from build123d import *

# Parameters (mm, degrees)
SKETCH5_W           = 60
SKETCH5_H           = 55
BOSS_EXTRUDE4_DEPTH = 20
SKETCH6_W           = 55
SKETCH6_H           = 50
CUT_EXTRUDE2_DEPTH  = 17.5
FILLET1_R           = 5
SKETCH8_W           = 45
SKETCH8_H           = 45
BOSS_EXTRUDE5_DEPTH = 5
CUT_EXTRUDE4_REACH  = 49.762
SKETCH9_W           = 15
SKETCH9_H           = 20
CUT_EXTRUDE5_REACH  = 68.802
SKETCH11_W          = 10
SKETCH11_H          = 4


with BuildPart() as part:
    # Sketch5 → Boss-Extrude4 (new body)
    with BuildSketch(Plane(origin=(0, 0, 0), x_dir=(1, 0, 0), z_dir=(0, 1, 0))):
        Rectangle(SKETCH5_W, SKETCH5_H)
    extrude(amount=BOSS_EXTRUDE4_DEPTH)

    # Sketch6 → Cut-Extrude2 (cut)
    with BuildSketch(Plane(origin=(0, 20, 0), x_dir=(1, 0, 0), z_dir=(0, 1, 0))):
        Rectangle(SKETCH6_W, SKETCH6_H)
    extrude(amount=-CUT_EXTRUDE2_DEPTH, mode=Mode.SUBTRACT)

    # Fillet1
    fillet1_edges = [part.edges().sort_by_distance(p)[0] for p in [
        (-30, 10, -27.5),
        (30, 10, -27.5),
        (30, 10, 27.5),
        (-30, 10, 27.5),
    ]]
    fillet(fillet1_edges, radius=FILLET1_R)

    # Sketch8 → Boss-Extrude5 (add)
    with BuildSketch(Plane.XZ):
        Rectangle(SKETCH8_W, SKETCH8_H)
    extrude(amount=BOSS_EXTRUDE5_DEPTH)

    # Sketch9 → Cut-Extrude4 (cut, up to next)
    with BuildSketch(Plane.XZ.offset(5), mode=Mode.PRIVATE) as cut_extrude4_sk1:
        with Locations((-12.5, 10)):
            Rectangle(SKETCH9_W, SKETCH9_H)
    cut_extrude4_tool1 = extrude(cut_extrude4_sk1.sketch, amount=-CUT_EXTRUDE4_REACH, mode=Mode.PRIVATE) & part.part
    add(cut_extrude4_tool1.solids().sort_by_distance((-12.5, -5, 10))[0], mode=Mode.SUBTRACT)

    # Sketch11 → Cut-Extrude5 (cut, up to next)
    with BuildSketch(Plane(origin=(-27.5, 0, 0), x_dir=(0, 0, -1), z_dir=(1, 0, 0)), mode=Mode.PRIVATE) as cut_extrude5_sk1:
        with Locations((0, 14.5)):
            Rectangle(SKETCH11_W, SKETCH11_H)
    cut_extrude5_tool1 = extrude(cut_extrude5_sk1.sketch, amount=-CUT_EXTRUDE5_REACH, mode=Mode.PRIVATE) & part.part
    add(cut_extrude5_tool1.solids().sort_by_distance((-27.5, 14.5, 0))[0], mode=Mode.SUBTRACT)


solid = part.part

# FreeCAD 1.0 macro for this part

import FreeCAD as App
import Part
import Sketcher
from FreeCAD import Vector


def edges_at(feature, points):
    """Names of the edges that pass closest to the given points."""
    edges = feature.Shape.Edges
    near = lambda p: min(range(len(edges)), key=lambda i: edges[i].distToShape(Part.Vertex(*p))[0])
    return sorted({f"Edge{near(p) + 1}" for p in points})


def add_polygon(sketch, points):
    """Adds a closed chain of lines whose ends are joined by coincident constraints."""
    first, n = sketch.GeometryCount, len(points)
    for a, b in zip(points, points[1:] + points[:1]):
        sketch.addGeometry(Part.LineSegment(App.Vector(*a, 0), App.Vector(*b, 0)), False)
    for i in range(n):
        sketch.addConstraint(Sketcher.Constraint("Coincident", first + i, 2, first + (i + 1) % n, 1))

doc = App.newDocument("Part")
body = doc.addObject("PartDesign::Body", "Body")

# Sketch on XZ plane
sketch1 = body.newObject("Sketcher::SketchObject", "Sketch")
sketch1.AttachmentSupport = (doc.getObject("XZ_Plane"), [""])
sketch1.MapMode = "FlatFace"
add_polygon(sketch1, [(-30, -27.5), (-30, 27.5), (30, 27.5), (30, -27.5)])  # lines 0-3
sketch1.addConstraint(Sketcher.Constraint("Vertical", 0))
sketch1.addConstraint(Sketcher.Constraint("Horizontal", 1))
sketch1.addConstraint(Sketcher.Constraint("Vertical", 2))
sketch1.addConstraint(Sketcher.Constraint("Horizontal", 3))
sketch1.addConstraint(Sketcher.Constraint("Symmetric", 0, 2, 2, 2, -1, 1))
sketch1.addConstraint(Sketcher.Constraint("DistanceX", 1, 1, 1, 2, 60.0))
sketch1.addConstraint(Sketcher.Constraint("DistanceY", 0, 1, 0, 2, 55.0))
pad1 = body.newObject("PartDesign::Pad", "Pad")
pad1.Profile = sketch1
pad1.Length = 20
pad1.Reversed = True

# Sketch on XZ plane
sketch2 = body.newObject("Sketcher::SketchObject", "Sketch001")
sketch2.AttachmentSupport = (doc.getObject("XZ_Plane"), [""])
sketch2.MapMode = "FlatFace"
sketch2.AttachmentOffset = App.Placement(Vector(0, 0, -20), App.Rotation())
add_polygon(sketch2, [(-27.5, -25), (-27.5, 25), (27.5, 25), (27.5, -25)])  # lines 0-3
sketch2.addConstraint(Sketcher.Constraint("Vertical", 0))
sketch2.addConstraint(Sketcher.Constraint("Horizontal", 1))
sketch2.addConstraint(Sketcher.Constraint("Vertical", 2))
sketch2.addConstraint(Sketcher.Constraint("Horizontal", 3))
sketch2.addConstraint(Sketcher.Constraint("Symmetric", 0, 2, 2, 2, -1, 1))
sketch2.addConstraint(Sketcher.Constraint("DistanceX", 1, 1, 1, 2, 55.0))
sketch2.addConstraint(Sketcher.Constraint("DistanceY", 0, 1, 0, 2, 50.0))
pocket1 = body.newObject("PartDesign::Pocket", "Pocket")
pocket1.Profile = sketch2
pocket1.Length = 17.5
pocket1.Reversed = True
doc.recompute()

fillet = body.newObject("PartDesign::Fillet", "Fillet")
fillet.Base = (pocket1, edges_at(pocket1, [
    (-30, 10, -27.5),
    (30, 10, -27.5),
    (30, 10, 27.5),
    (-30, 10, 27.5),
]))
fillet.Radius = 5

# Sketch on XZ plane
sketch3 = body.newObject("Sketcher::SketchObject", "Sketch002")
sketch3.AttachmentSupport = (doc.getObject("XZ_Plane"), [""])
sketch3.MapMode = "FlatFace"
add_polygon(sketch3, [(-22.5, 22.5), (-22.5, -22.5), (22.5, -22.5), (22.5, 22.5)])  # lines 0-3
sketch3.addConstraint(Sketcher.Constraint("Vertical", 0))
sketch3.addConstraint(Sketcher.Constraint("Horizontal", 1))
sketch3.addConstraint(Sketcher.Constraint("Vertical", 2))
sketch3.addConstraint(Sketcher.Constraint("Horizontal", 3))
sketch3.addConstraint(Sketcher.Constraint("Symmetric", 0, 2, 2, 2, -1, 1))
sketch3.addConstraint(Sketcher.Constraint("Equal", 3, 0))
sketch3.addConstraint(Sketcher.Constraint("DistanceX", 1, 1, 1, 2, 45.0))
pad2 = body.newObject("PartDesign::Pad", "Pad001")
pad2.Profile = sketch3
pad2.Length = 5

# Sketch on XZ plane
sketch4 = body.newObject("Sketcher::SketchObject", "Sketch003")
sketch4.AttachmentSupport = (doc.getObject("XZ_Plane"), [""])
sketch4.MapMode = "FlatFace"
sketch4.AttachmentOffset = App.Placement(Vector(0, 0, 5), App.Rotation())
add_polygon(sketch4, [(-20, 20), (-20, 0), (-5, 0), (-5, 20)])  # lines 0-3
sketch4.addConstraint(Sketcher.Constraint("Vertical", 0))
sketch4.addConstraint(Sketcher.Constraint("Horizontal", 1))
sketch4.addConstraint(Sketcher.Constraint("Vertical", 2))
sketch4.addConstraint(Sketcher.Constraint("Horizontal", 3))
sketch4.addConstraint(Sketcher.Constraint("PointOnObject", 0, 2, -1))
sketch4.addConstraint(Sketcher.Constraint("DistanceX", 1, 1, 1, 2, 15.0))
sketch4.addConstraint(Sketcher.Constraint("DistanceY", 0, 2, 0, 1, 20.0))
sketch4.addConstraint(Sketcher.Constraint("DistanceX", 0, 2, -1, 1, 20.0))
pocket2 = body.newObject("PartDesign::Pocket", "Pocket001")
pocket2.Profile = sketch4
pocket2.Type = "UpToFirst"

# Sketch on YZ plane
sketch5 = body.newObject("Sketcher::SketchObject", "Sketch004")
sketch5.AttachmentSupport = (doc.getObject("YZ_Plane"), [""])
sketch5.MapMode = "FlatFace"
sketch5.AttachmentOffset = App.Placement(Vector(0, 0, -27.5), App.Rotation())
add_polygon(sketch5, [(16.5, 5), (12.5, 5), (12.5, -5), (16.5, -5)])  # lines 0-3
sketch5.addConstraint(Sketcher.Constraint("Horizontal", 0))
sketch5.addConstraint(Sketcher.Constraint("Vertical", 1))
sketch5.addConstraint(Sketcher.Constraint("Horizontal", 2))
sketch5.addConstraint(Sketcher.Constraint("Vertical", 3))
sketch5.addConstraint(Sketcher.Constraint("DistanceX", 0, 2, 0, 1, 4.0))
sketch5.addConstraint(Sketcher.Constraint("DistanceY", 1, 2, 1, 1, 10.0))
sketch5.addConstraint(Sketcher.Constraint("DistanceY", -1, 1, 0, 2, 5.0))
sketch5.addConstraint(Sketcher.Constraint("DistanceX", -1, 1, 0, 2, 12.5))
pocket3 = body.newObject("PartDesign::Pocket", "Pocket002")
pocket3.Profile = sketch5
pocket3.Type = "UpToFirst"

doc.recompute()
